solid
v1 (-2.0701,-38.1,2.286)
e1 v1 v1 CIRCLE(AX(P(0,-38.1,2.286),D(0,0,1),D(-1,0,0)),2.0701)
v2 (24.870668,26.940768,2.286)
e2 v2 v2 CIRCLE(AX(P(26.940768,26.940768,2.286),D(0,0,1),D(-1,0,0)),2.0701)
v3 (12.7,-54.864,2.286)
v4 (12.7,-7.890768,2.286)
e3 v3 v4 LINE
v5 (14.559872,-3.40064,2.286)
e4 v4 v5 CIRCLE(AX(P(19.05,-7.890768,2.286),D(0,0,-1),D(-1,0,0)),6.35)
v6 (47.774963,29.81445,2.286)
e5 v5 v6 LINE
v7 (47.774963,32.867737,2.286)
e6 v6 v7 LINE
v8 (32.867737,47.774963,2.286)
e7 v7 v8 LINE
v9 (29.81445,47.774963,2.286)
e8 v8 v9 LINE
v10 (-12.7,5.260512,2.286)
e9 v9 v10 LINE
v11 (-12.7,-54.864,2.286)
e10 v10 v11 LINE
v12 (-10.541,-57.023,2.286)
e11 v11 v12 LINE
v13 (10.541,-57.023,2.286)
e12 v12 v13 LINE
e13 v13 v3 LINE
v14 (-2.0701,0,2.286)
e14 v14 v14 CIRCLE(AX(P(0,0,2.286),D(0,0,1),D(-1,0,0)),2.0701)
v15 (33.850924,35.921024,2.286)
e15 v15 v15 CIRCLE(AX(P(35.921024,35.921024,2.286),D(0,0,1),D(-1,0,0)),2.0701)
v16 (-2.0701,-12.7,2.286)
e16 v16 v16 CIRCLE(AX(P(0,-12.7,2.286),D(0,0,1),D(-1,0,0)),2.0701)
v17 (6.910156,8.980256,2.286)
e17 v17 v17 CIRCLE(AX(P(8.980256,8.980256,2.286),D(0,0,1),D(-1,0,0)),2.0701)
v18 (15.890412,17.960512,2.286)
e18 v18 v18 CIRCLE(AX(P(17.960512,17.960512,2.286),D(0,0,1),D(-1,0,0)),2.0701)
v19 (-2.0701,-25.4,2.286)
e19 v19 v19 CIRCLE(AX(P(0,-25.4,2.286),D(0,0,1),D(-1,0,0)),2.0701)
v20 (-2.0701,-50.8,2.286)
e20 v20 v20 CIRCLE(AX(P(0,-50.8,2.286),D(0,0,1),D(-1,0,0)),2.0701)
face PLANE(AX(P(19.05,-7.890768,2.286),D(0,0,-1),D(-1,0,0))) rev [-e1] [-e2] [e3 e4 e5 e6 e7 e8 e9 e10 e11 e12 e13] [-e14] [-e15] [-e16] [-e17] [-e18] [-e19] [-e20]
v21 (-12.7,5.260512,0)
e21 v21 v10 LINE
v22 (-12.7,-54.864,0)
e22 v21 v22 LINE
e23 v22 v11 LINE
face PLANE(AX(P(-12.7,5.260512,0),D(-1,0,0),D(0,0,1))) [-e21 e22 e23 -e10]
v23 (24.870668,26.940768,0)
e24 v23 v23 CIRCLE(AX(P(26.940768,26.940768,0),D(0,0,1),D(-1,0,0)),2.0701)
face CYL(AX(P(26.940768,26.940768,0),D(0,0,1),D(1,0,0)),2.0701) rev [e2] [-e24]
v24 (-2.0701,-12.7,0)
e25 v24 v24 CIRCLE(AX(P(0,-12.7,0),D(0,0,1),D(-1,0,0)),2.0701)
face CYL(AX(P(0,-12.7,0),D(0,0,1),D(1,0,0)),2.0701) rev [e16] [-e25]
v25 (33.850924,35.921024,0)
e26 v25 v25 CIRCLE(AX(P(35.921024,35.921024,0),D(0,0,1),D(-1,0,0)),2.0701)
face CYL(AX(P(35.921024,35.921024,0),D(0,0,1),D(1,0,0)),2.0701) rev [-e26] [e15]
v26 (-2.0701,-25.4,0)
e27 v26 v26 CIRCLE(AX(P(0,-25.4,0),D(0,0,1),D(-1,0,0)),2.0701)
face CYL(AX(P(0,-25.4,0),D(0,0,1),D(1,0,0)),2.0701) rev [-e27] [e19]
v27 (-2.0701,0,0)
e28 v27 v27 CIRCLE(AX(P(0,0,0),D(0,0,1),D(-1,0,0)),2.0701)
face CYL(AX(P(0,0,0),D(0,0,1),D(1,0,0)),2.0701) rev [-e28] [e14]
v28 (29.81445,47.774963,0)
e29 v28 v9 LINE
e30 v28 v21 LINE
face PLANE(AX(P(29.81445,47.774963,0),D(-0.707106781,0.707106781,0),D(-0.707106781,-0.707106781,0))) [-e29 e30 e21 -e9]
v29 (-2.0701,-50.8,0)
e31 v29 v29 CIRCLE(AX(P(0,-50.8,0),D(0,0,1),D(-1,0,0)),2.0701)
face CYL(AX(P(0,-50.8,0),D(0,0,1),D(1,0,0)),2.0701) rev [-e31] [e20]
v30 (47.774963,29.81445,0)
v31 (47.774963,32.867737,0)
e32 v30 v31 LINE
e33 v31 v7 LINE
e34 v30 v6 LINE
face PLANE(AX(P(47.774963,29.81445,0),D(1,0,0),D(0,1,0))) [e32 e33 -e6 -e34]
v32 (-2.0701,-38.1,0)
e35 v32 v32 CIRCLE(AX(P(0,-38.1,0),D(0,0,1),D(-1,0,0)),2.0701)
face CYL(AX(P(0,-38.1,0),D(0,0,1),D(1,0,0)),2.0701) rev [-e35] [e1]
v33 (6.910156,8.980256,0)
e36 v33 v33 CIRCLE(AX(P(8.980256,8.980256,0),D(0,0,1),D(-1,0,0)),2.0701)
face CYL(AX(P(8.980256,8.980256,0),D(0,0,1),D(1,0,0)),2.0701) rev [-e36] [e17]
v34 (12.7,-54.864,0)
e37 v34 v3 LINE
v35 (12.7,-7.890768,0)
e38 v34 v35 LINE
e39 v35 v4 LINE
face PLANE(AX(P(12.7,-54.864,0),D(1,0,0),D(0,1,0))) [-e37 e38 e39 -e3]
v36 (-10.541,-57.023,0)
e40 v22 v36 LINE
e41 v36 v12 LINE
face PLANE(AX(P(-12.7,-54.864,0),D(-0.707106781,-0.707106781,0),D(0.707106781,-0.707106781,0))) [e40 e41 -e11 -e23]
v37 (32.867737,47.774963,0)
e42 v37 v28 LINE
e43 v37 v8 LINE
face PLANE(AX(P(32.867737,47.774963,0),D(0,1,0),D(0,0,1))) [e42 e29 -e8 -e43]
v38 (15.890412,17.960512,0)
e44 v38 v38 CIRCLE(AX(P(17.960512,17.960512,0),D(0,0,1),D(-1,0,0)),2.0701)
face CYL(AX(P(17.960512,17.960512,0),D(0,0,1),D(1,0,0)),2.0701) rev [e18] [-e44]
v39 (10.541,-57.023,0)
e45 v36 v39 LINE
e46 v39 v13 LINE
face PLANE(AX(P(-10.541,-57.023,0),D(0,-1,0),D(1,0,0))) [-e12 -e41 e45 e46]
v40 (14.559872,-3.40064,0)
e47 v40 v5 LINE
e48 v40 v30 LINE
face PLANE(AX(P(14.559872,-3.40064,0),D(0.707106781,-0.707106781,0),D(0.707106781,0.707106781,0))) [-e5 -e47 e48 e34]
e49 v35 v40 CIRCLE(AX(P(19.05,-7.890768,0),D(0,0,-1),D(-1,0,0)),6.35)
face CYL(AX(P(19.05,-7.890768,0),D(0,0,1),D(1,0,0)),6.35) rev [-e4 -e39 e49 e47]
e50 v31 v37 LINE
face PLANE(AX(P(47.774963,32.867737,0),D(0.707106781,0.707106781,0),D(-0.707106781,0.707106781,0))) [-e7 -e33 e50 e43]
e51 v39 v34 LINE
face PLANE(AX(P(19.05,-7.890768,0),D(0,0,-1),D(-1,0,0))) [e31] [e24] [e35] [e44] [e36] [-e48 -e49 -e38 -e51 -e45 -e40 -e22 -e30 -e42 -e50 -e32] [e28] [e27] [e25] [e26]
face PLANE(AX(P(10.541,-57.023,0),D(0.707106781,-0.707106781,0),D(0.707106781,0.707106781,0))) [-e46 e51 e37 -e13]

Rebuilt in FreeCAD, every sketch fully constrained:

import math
import FreeCAD as App
import Part
import Sketcher
Q = App.Units.Quantity

doc = App.newDocument("Part")
body = doc.addObject("PartDesign::Body", "Body")

# Sketch on XY plane
sketch1 = body.newObject("Sketcher::SketchObject", "Sketch")
sketch1.AttachmentSupport = (doc.getObject("XY_Plane"), [""])
sketch1.MapMode = "FlatFace"
sketch1.AttachmentOffset = App.Placement(App.Vector(0, 0, 0.09 * 25.4), App.Rotation())
sketch1.addGeometry([
    Part.LineSegment(App.Vector(32.9, 47.8, 0), App.Vector(29.8, 47.8, 0)),  # 0
    Part.LineSegment(App.Vector(29.8, 47.8, 0), App.Vector(-12.7, 5.3, 0)),  # 1
    Part.LineSegment(App.Vector(-12.7, 5.3, 0), App.Vector(-12.7, -54.9, 0)),  # 2
    Part.LineSegment(App.Vector(-12.7, -54.9, 0), App.Vector(-10.5, -57, 0)),  # 3
    Part.LineSegment(App.Vector(-10.5, -57, 0), App.Vector(10.5, -57, 0)),  # 4
    Part.LineSegment(App.Vector(10.5, -57, 0), App.Vector(12.7, -54.9, 0)),  # 5
    Part.LineSegment(App.Vector(12.7, -54.9, 0), App.Vector(12.7, -7.9, 0)),  # 6
    Part.ArcOfCircle(Part.Circle(App.Vector(19.1, -7.9, 0), App.Vector(0, 0, 1), 6.4), math.radians(135), math.radians(180)),  # 7
    Part.LineSegment(App.Vector(14.6, -3.4, 0), App.Vector(47.8, 29.8, 0)),  # 8
    Part.LineSegment(App.Vector(47.8, 29.8, 0), App.Vector(47.8, 32.9, 0)),  # 9
    Part.LineSegment(App.Vector(47.8, 32.9, 0), App.Vector(32.9, 47.8, 0)),  # 10
    Part.Circle(App.Vector(0, -50.8, 0), App.Vector(0, 0, 1), 2.1),  # 11
    Part.Circle(App.Vector(0, -38.1, 0), App.Vector(0, 0, 1), 2.1),  # 12
    Part.Circle(App.Vector(0, -25.4, 0), App.Vector(0, 0, 1), 2.1),  # 13
    Part.Circle(App.Vector(0, -12.7, 0), App.Vector(0, 0, 1), 2.1),  # 14
    Part.Circle(App.Vector(0, 0, 0), App.Vector(0, 0, 1), 2.1),  # 15
    Part.Circle(App.Vector(9, 9, 0), App.Vector(0, 0, 1), 2.1),  # 16
    Part.Circle(App.Vector(18, 18, 0), App.Vector(0, 0, 1), 2.1),  # 17
    Part.Circle(App.Vector(26.9, 26.9, 0), App.Vector(0, 0, 1), 2.1),  # 18
    Part.Circle(App.Vector(35.9, 35.9, 0), App.Vector(0, 0, 1), 2.1),  # 19
], False)
sketch1.addConstraint([
    Sketcher.Constraint("Coincident", 0, 2, 1, 1),
    Sketcher.Constraint("Coincident", 1, 2, 2, 1),
    Sketcher.Constraint("Coincident", 2, 2, 3, 1),
    Sketcher.Constraint("Coincident", 3, 2, 4, 1),
    Sketcher.Constraint("Coincident", 4, 2, 5, 1),
    Sketcher.Constraint("Coincident", 5, 2, 6, 1),
    Sketcher.Constraint("Tangent", 6, 2, 7, 2),
    Sketcher.Constraint("Tangent", 7, 1, 8, 1),
    Sketcher.Constraint("Coincident", 8, 2, 9, 1),
    Sketcher.Constraint("Coincident", 9, 2, 10, 1),
    Sketcher.Constraint("Coincident", 10, 2, 0, 1),
    Sketcher.Constraint("Horizontal", 0),
    Sketcher.Constraint("Vertical", 2),
    Sketcher.Constraint("Horizontal", 4),
    Sketcher.Constraint("Vertical", 6),
    Sketcher.Constraint("Vertical", 9),
    Sketcher.Constraint("Coincident", 15, 3, -1, 1),
    Sketcher.Constraint("Equal", 11, 12),
    Sketcher.Constraint("Equal", 12, 13),
    Sketcher.Constraint("Equal", 13, 14),
    Sketcher.Constraint("Equal", 14, 15),
    Sketcher.Constraint("Equal", 15, 16),
    Sketcher.Constraint("Equal", 16, 17),
    Sketcher.Constraint("Equal", 17, 18),
    Sketcher.Constraint("Equal", 18, 19),
    Sketcher.Constraint("Symmetric", 2, 2, 5, 2, -2),
    Sketcher.Constraint("PointOnObject", 11, 3, -2),
    Sketcher.Constraint("PointOnObject", 12, 3, -2),
    Sketcher.Constraint("PointOnObject", 13, 3, -2),
    Sketcher.Constraint("PointOnObject", 14, 3, -2),
    Sketcher.Constraint("Perpendicular", 1, 3),
    Sketcher.Constraint("Perpendicular", 3, 5),
    Sketcher.Constraint("Parallel", 5, 8),
    Sketcher.Constraint("Perpendicular", 8, 10),
    Sketcher.Constraint("Equal", 0, 9),
    Sketcher.Constraint("Equal", 3, 5),
    Sketcher.Constraint("Radius", 7, Q("0.25 in")),
    Sketcher.Constraint("Diameter", 11, Q("0.163 in")),
    Sketcher.Constraint("DistanceY", 11, 3, -1, 1, Q("2 in")),
    Sketcher.Constraint("DistanceY", 13, 3, -1, 1, Q("1 in")),
    Sketcher.Constraint("DistanceY", 12, 3, 14, 3, Q("1 in")),
    Sketcher.Constraint("DistanceX", 2, 2, 5, 2, Q("1 in")),
    Sketcher.Constraint("DistanceX", 4, 1, 4, 2, Q("0.83 in")),
    Sketcher.Constraint("DistanceY", 12, 3, -1, 1, Q("1.5 in")),
    Sketcher.Constraint("DistanceY", 1, 2, 17, 3, Q("0.5 in")),
    Sketcher.Constraint("Distance", 10, Q("0.83 in")),
    Sketcher.Constraint("DistanceY", 2, 2, -1, 1, Q("2.16 in")),
    Sketcher.Constraint("DistanceY", 6, 1, 6, 2, Q("46.973232 mm")),
    Sketcher.Constraint("Distance", 8, Q("46.973232 mm")),
    Sketcher.Constraint("DistanceX", 0, 2, 0, 1, Q("3.053287 mm")),
    Sketcher.Constraint("DistanceX", -1, 1, 18, 3, Q("26.940768 mm")),
    Sketcher.Constraint("DistanceY", -1, 1, 18, 3, Q("26.940768 mm")),
    Sketcher.Constraint("DistanceX", 16, 3, 19, 3, Q("26.940768 mm")),
    Sketcher.Constraint("DistanceY", 16, 3, 19, 3, Q("26.940768 mm")),
    Sketcher.Constraint("DistanceY", 19, 3, 0, 2, Q("11.853938 mm")),
    Sketcher.Constraint("DistanceX", 17, 3, 0, 2, Q("11.853938 mm")),
    Sketcher.Constraint("DistanceX", 19, 3, 8, 2, Q("11.853938 mm")),
])
pad1 = body.newObject("PartDesign::Pad", "Pad")
pad1.Profile = sketch1
pad1.Length = Q("0.09 in")
pad1.Reversed = True

doc.recompute()
